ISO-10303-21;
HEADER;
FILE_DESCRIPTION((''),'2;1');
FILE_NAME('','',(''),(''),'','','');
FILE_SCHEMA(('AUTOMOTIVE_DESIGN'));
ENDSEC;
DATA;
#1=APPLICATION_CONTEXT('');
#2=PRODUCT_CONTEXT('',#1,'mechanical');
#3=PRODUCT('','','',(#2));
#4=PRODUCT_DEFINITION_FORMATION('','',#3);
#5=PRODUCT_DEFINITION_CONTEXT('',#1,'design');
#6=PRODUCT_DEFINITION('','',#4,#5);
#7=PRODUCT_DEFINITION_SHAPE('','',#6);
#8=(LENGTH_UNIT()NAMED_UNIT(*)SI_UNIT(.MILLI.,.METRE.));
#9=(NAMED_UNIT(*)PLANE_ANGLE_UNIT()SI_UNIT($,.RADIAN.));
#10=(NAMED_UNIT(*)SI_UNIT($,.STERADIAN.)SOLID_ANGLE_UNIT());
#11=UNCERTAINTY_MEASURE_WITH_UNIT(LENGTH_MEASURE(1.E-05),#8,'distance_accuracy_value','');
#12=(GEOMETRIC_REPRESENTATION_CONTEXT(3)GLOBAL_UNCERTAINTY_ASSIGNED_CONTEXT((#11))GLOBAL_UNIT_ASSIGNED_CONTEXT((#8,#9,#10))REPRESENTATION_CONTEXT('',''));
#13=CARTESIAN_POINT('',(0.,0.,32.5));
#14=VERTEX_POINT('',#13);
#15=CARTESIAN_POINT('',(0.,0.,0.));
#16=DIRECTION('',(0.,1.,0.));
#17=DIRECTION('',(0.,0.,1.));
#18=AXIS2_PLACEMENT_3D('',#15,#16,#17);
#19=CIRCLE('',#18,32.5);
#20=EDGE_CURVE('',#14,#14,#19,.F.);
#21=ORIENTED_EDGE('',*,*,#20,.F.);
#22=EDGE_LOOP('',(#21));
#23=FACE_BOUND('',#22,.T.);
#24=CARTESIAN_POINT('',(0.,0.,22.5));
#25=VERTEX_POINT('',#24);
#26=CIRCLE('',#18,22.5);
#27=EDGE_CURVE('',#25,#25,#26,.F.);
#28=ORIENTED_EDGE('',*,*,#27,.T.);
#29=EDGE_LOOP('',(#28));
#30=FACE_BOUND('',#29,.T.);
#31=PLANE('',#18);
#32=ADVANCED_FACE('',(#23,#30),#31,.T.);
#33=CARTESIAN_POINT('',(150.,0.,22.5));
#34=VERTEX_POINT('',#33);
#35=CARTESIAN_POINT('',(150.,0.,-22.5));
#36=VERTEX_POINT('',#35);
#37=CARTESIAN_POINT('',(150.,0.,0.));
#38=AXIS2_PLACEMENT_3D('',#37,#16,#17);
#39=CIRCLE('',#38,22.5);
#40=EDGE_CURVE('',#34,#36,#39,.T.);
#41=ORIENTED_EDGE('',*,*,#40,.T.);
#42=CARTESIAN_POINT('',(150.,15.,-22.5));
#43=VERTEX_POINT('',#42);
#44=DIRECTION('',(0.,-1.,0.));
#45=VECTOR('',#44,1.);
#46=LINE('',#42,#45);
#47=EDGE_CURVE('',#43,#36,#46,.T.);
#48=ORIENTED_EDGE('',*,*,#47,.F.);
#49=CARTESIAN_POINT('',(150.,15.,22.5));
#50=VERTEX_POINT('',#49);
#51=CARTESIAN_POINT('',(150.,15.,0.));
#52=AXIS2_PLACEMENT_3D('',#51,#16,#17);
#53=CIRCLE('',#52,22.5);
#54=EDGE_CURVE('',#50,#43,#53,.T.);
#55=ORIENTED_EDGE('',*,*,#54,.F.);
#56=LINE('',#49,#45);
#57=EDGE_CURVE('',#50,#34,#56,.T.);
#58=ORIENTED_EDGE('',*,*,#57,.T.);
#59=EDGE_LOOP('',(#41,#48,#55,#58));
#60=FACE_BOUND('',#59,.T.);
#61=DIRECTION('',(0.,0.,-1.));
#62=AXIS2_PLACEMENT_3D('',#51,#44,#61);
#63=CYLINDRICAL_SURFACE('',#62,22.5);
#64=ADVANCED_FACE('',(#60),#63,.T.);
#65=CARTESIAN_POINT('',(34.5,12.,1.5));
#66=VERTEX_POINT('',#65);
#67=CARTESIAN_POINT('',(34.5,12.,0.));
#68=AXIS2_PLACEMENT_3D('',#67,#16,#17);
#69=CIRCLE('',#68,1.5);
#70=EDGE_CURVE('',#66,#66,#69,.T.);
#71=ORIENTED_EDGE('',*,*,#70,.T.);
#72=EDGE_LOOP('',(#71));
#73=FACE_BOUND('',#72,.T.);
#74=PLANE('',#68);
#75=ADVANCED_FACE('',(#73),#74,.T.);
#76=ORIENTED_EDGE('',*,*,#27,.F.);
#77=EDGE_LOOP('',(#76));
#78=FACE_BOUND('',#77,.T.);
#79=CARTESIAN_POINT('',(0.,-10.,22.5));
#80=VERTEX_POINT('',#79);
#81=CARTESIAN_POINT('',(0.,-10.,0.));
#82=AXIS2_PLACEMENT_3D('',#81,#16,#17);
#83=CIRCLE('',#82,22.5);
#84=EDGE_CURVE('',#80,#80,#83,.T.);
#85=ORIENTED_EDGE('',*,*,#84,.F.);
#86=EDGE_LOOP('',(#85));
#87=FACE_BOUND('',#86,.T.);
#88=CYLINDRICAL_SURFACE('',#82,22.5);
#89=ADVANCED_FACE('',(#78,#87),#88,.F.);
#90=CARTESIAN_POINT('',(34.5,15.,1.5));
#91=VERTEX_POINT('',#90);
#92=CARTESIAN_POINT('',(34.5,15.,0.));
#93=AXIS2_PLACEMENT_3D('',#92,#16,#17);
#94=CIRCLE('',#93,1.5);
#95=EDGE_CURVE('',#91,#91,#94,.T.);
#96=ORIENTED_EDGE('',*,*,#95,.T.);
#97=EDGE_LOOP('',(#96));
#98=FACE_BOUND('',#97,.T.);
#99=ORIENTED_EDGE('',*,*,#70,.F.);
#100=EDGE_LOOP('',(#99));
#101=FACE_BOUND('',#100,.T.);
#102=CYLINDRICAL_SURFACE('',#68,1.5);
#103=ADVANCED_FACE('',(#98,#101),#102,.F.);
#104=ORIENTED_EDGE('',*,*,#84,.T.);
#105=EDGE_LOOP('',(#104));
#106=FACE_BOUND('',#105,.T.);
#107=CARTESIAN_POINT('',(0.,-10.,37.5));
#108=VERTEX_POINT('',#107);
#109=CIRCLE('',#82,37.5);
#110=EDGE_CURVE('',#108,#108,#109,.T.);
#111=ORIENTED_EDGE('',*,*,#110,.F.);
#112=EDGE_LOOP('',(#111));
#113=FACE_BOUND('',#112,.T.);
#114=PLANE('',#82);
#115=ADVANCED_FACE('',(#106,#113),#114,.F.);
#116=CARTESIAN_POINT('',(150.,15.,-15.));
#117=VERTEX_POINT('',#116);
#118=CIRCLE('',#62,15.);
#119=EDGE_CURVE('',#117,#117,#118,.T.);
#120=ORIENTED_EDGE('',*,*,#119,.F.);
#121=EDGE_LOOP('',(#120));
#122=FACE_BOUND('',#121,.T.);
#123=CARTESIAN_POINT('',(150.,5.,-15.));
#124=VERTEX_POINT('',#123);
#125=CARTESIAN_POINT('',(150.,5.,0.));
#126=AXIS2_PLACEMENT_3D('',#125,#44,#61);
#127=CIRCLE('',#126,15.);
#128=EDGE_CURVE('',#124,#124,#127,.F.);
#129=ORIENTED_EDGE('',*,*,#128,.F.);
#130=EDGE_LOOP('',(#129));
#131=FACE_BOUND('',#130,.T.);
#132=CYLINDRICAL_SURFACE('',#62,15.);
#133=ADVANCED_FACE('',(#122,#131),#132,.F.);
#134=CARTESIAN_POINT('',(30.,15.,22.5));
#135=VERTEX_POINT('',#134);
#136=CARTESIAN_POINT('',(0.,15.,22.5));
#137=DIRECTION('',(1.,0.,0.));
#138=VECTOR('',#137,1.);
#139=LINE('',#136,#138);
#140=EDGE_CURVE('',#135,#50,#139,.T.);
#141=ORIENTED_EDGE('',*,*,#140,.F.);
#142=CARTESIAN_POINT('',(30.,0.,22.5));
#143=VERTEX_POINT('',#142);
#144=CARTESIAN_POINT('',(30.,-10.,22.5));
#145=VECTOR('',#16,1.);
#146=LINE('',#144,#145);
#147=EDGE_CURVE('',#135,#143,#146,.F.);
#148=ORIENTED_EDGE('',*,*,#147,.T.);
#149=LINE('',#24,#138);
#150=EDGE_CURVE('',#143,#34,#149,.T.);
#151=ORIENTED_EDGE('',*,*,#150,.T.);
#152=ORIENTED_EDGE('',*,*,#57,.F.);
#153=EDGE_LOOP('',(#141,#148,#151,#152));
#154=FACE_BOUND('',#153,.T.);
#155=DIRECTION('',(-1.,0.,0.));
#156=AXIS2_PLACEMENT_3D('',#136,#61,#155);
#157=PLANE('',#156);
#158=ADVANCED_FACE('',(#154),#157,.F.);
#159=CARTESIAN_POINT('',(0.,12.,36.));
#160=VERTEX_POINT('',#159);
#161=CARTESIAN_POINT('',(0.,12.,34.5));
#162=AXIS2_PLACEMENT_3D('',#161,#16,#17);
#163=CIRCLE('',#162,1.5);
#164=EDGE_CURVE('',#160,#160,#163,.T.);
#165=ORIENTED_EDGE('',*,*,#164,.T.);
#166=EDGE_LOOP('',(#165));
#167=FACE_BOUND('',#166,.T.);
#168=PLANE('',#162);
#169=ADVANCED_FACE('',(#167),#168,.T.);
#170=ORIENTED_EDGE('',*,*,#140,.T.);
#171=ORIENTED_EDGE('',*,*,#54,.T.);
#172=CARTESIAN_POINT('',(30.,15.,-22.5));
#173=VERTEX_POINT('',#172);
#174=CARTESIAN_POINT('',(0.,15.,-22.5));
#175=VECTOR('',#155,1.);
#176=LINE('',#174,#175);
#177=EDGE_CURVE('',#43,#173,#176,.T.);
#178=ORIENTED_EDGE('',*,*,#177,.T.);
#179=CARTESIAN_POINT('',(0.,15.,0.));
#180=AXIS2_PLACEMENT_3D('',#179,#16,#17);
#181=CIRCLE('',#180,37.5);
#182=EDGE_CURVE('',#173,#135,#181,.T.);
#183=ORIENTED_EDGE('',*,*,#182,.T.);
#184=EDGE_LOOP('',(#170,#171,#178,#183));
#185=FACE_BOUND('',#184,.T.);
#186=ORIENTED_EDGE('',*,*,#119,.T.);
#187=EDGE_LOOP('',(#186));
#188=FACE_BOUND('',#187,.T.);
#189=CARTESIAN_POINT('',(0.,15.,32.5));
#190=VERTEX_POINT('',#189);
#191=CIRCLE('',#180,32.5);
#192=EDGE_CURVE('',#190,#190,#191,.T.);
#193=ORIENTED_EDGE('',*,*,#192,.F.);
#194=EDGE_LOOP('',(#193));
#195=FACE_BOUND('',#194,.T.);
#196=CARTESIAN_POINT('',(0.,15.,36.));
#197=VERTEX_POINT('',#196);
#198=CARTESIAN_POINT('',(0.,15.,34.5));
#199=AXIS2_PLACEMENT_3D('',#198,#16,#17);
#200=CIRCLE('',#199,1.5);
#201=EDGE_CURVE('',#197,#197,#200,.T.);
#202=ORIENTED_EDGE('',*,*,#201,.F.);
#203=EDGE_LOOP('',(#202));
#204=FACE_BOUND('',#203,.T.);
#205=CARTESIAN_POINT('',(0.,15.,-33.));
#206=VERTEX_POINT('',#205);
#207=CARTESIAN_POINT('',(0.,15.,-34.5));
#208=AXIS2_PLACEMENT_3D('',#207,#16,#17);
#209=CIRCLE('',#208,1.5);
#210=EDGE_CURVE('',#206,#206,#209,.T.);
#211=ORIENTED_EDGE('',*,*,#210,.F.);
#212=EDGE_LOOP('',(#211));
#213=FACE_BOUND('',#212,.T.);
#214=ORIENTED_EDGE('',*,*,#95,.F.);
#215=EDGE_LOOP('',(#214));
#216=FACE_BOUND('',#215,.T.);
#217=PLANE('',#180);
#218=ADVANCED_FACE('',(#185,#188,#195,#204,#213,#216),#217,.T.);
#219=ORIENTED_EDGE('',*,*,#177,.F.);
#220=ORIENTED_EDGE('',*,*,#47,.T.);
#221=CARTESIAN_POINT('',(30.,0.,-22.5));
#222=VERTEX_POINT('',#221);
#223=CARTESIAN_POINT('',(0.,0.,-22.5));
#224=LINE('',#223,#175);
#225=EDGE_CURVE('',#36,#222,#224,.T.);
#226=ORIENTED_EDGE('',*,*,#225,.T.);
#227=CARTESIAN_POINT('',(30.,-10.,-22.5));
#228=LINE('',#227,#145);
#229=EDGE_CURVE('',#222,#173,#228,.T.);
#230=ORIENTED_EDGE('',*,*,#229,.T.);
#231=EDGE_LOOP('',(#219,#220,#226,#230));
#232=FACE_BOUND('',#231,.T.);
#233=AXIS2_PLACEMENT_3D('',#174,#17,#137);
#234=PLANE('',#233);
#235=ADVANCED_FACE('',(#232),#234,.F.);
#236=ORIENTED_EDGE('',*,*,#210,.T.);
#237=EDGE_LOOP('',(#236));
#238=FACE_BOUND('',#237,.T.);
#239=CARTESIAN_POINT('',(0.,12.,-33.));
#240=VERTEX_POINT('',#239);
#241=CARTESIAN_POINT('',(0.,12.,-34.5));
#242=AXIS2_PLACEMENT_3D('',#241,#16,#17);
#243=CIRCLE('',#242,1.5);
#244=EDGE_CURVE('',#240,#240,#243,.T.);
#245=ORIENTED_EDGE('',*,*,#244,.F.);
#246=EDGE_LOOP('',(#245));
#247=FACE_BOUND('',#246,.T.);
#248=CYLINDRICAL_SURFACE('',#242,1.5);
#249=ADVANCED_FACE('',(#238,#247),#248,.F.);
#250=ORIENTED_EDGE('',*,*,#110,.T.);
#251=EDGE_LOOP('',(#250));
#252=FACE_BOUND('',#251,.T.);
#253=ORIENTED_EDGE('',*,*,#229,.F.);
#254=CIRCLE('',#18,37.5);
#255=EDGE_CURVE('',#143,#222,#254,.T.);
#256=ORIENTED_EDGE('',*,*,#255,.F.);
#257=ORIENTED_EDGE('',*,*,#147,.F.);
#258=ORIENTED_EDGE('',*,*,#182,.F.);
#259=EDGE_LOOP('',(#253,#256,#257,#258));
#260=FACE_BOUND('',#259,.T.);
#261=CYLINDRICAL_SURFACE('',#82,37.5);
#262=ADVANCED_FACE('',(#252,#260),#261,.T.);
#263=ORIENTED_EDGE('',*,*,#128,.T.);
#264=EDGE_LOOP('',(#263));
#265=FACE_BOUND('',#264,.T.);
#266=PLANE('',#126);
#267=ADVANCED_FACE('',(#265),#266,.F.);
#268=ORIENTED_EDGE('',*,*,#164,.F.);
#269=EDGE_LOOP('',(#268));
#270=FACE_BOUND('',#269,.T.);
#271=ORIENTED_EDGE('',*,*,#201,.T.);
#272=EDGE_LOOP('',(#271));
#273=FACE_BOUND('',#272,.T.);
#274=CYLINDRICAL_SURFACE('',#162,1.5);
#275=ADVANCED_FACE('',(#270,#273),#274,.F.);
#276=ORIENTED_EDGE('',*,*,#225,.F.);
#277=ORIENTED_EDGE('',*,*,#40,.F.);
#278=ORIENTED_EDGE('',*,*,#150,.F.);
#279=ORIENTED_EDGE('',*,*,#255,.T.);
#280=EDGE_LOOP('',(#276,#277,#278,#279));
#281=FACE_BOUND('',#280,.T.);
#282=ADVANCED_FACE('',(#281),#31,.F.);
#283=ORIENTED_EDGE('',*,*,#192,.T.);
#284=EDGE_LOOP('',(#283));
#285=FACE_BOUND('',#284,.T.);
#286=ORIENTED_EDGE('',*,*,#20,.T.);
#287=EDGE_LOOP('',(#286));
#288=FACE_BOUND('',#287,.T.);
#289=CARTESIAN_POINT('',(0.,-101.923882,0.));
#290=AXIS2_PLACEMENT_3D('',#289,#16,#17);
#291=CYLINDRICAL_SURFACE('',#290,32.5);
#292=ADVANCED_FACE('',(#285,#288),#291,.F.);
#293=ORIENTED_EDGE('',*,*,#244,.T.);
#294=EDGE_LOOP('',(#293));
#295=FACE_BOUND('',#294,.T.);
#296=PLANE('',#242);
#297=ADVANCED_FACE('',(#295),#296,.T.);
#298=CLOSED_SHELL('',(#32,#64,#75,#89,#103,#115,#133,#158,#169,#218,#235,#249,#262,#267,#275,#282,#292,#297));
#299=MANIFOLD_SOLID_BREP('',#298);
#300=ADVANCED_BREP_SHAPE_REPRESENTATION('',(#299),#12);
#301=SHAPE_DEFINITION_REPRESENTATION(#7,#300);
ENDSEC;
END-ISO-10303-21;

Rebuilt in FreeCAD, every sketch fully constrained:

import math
import FreeCAD as App
import Part
import Sketcher
from FreeCAD import Vector

doc = App.newDocument("Part")
body = doc.addObject("PartDesign::Body", "Body")

sketch1 = doc.addObject("Sketcher::SketchObject", "Sketch")
body.addObject(sketch1)
sketch1.AttachmentSupport = (doc.XZ_Plane, [""])
sketch1.MapMode = "FlatFace"
sketch1.addGeometry(Part.LineSegment(Vector(150, -22, 0), Vector(0, -22, 0)), False)
sketch1.addGeometry(Part.ArcOfCircle(Part.Circle(Vector(0, 0, 0), Vector(0, 0, 1), 22), math.radians(90), math.radians(270)), False)
sketch1.addGeometry(Part.LineSegment(Vector(0, 22, 0), Vector(150, 22, 0)), False)
sketch1.addGeometry(Part.ArcOfCircle(Part.Circle(Vector(150, 0, 0), Vector(0, 0, 1), 22), math.radians(-90), math.radians(90)), False)
sketch1.addConstraint(Sketcher.Constraint("Tangent", 0, 2, 1, 2))
sketch1.addConstraint(Sketcher.Constraint("Tangent", 1, 1, 2, 1))
sketch1.addConstraint(Sketcher.Constraint("Tangent", 2, 2, 3, 2))
sketch1.addConstraint(Sketcher.Constraint("Tangent", 3, 1, 0, 1))
sketch1.addConstraint(Sketcher.Constraint("Horizontal", 0))
sketch1.addConstraint(Sketcher.Constraint("Horizontal", 2))
sketch1.addConstraint(Sketcher.Constraint("Coincident", 1, 3, -1, 1))
sketch1.addConstraint(Sketcher.Constraint("Radius", 1, 22.5))
sketch1.addConstraint(Sketcher.Constraint("DistanceX", 0, 2, 0, 1, 150.0))
pad1 = doc.addObject("PartDesign::Pad", "Pad")
body.addObject(pad1)
pad1.Profile = sketch1
pad1.Length = 15
pad1.Reversed = True

sketch2 = doc.addObject("Sketcher::SketchObject", "Sketch001")
body.addObject(sketch2)
sketch2.AttachmentSupport = (doc.XZ_Plane, [""])
sketch2.MapMode = "FlatFace"
sketch2.AttachmentOffset = App.Placement(Vector(0, 0, -15), App.Rotation())
sketch2.addGeometry(Part.Circle(Vector(0, 0, 0), Vector(0, 0, 1), 38), False)
sketch2.addConstraint(Sketcher.Constraint("Coincident", 0, 3, -1, 1))
sketch2.addConstraint(Sketcher.Constraint("Diameter", 0, 75.0))
pad2 = doc.addObject("PartDesign::Pad", "Pad001")
body.addObject(pad2)
pad2.Profile = sketch2
pad2.Length = 25

sketch3 = doc.addObject("Sketcher::SketchObject", "Sketch002")
body.addObject(sketch3)
sketch3.AttachmentSupport = (doc.XZ_Plane, [""])
sketch3.MapMode = "FlatFace"
sketch3.AttachmentOffset = App.Placement(Vector(0, 0, -15), App.Rotation())
sketch3.addGeometry(Part.Circle(Vector(0, 0, 0), Vector(0, 0, 1), 22), False)
sketch3.addConstraint(Sketcher.Constraint("Coincident", 0, 3, -1, 1))
sketch3.addConstraint(Sketcher.Constraint("Diameter", 0, 45.0))
pocket1 = doc.addObject("PartDesign::Pocket", "Pocket")
body.addObject(pocket1)
pocket1.Profile = sketch3
pocket1.Type = "ThroughAll"
pocket1.Reversed = True

sketch4 = doc.addObject("Sketcher::SketchObject", "Sketch003")
body.addObject(sketch4)
sketch4.AttachmentSupport = (doc.XZ_Plane, [""])
sketch4.MapMode = "FlatFace"
sketch4.AttachmentOffset = App.Placement(Vector(0, 0, -15), App.Rotation())
sketch4.addGeometry(Part.Circle(Vector(0, 0, 0), Vector(0, 0, 1), 32), False)
sketch4.addConstraint(Sketcher.Constraint("Coincident", 0, 3, -1, 1))
sketch4.addConstraint(Sketcher.Constraint("Diameter", 0, 65.0))
pocket2 = doc.addObject("PartDesign::Pocket", "Pocket001")
body.addObject(pocket2)
pocket2.Profile = sketch4
pocket2.Length = 15
pocket2.Reversed = True

sketch5 = doc.addObject("Sketcher::SketchObject", "Sketch004")
body.addObject(sketch5)
sketch5.AttachmentSupport = (doc.XZ_Plane, [""])
sketch5.MapMode = "FlatFace"
sketch5.addGeometry(Part.Circle(Vector(150, 0, 0), Vector(0, 0, 1), 15), False)
sketch5.addConstraint(Sketcher.Constraint("PointOnObject", 0, 3, -1))
sketch5.addConstraint(Sketcher.Constraint("Diameter", 0, 30.0))
sketch5.addConstraint(Sketcher.Constraint("DistanceX", -1, 1, 0, 3, 150.0))
pocket3 = doc.addObject("PartDesign::Pocket", "Pocket002")
body.addObject(pocket3)
pocket3.Profile = sketch5
pocket3.Type = "ThroughAll"

sketch6 = doc.addObject("Sketcher::SketchObject", "Sketch005")
body.addObject(sketch6)
sketch6.AttachmentSupport = (doc.XZ_Plane, [""])
sketch6.MapMode = "FlatFace"
sketch6.addGeometry(Part.Circle(Vector(150, 0, 0), Vector(0, 0, 1), 15), False)
sketch6.addConstraint(Sketcher.Constraint("PointOnObject", 0, 3, -1))
sketch6.addConstraint(Sketcher.Constraint("Diameter", 0, 30.0))
sketch6.addConstraint(Sketcher.Constraint("DistanceX", -1, 1, 0, 3, 150.0))
pad3 = doc.addObject("PartDesign::Pad", "Pad002")
body.addObject(pad3)
pad3.Profile = sketch6
pad3.Length = 5
pad3.Reversed = True

sketch7 = doc.addObject("Sketcher::SketchObject", "Sketch006")
body.addObject(sketch7)
sketch7.AttachmentSupport = (doc.XZ_Plane, [""])
sketch7.MapMode = "FlatFace"
sketch7.AttachmentOffset = App.Placement(Vector(0, 0, -15), App.Rotation())
sketch7.addGeometry(Part.Circle(Vector(0, 34.5, 0), Vector(0, 0, 1), 1.5), False)
sketch7.addGeometry(Part.Circle(Vector(34.5, 0, 0), Vector(0, 0, 1), 1.5), False)
sketch7.addGeometry(Part.Circle(Vector(0, -34.5, 0), Vector(0, 0, 1), 1.5), False)
sketch7.addConstraint(Sketcher.Constraint("Equal", 0, 1))
sketch7.addConstraint(Sketcher.Constraint("Equal", 1, 2))
sketch7.addConstraint(Sketcher.Constraint("Symmetric", 0, 3, 2, 3, -1, 1))
sketch7.addConstraint(Sketcher.Constraint("PointOnObject", 0, 3, -2))
sketch7.addConstraint(Sketcher.Constraint("PointOnObject", 1, 3, -1))
sketch7.addConstraint(Sketcher.Constraint("Diameter", 0, 3.0))
sketch7.addConstraint(Sketcher.Constraint("DistanceY", 2, 3, 0, 3, 69.0))
sketch7.addConstraint(Sketcher.Constraint("DistanceX", -1, 1, 1, 3, 34.5))
pocket4 = doc.addObject("PartDesign::Pocket", "Pocket003")
body.addObject(pocket4)
pocket4.Profile = sketch7
pocket4.Length = 3
pocket4.Reversed = True

doc.recompute()
